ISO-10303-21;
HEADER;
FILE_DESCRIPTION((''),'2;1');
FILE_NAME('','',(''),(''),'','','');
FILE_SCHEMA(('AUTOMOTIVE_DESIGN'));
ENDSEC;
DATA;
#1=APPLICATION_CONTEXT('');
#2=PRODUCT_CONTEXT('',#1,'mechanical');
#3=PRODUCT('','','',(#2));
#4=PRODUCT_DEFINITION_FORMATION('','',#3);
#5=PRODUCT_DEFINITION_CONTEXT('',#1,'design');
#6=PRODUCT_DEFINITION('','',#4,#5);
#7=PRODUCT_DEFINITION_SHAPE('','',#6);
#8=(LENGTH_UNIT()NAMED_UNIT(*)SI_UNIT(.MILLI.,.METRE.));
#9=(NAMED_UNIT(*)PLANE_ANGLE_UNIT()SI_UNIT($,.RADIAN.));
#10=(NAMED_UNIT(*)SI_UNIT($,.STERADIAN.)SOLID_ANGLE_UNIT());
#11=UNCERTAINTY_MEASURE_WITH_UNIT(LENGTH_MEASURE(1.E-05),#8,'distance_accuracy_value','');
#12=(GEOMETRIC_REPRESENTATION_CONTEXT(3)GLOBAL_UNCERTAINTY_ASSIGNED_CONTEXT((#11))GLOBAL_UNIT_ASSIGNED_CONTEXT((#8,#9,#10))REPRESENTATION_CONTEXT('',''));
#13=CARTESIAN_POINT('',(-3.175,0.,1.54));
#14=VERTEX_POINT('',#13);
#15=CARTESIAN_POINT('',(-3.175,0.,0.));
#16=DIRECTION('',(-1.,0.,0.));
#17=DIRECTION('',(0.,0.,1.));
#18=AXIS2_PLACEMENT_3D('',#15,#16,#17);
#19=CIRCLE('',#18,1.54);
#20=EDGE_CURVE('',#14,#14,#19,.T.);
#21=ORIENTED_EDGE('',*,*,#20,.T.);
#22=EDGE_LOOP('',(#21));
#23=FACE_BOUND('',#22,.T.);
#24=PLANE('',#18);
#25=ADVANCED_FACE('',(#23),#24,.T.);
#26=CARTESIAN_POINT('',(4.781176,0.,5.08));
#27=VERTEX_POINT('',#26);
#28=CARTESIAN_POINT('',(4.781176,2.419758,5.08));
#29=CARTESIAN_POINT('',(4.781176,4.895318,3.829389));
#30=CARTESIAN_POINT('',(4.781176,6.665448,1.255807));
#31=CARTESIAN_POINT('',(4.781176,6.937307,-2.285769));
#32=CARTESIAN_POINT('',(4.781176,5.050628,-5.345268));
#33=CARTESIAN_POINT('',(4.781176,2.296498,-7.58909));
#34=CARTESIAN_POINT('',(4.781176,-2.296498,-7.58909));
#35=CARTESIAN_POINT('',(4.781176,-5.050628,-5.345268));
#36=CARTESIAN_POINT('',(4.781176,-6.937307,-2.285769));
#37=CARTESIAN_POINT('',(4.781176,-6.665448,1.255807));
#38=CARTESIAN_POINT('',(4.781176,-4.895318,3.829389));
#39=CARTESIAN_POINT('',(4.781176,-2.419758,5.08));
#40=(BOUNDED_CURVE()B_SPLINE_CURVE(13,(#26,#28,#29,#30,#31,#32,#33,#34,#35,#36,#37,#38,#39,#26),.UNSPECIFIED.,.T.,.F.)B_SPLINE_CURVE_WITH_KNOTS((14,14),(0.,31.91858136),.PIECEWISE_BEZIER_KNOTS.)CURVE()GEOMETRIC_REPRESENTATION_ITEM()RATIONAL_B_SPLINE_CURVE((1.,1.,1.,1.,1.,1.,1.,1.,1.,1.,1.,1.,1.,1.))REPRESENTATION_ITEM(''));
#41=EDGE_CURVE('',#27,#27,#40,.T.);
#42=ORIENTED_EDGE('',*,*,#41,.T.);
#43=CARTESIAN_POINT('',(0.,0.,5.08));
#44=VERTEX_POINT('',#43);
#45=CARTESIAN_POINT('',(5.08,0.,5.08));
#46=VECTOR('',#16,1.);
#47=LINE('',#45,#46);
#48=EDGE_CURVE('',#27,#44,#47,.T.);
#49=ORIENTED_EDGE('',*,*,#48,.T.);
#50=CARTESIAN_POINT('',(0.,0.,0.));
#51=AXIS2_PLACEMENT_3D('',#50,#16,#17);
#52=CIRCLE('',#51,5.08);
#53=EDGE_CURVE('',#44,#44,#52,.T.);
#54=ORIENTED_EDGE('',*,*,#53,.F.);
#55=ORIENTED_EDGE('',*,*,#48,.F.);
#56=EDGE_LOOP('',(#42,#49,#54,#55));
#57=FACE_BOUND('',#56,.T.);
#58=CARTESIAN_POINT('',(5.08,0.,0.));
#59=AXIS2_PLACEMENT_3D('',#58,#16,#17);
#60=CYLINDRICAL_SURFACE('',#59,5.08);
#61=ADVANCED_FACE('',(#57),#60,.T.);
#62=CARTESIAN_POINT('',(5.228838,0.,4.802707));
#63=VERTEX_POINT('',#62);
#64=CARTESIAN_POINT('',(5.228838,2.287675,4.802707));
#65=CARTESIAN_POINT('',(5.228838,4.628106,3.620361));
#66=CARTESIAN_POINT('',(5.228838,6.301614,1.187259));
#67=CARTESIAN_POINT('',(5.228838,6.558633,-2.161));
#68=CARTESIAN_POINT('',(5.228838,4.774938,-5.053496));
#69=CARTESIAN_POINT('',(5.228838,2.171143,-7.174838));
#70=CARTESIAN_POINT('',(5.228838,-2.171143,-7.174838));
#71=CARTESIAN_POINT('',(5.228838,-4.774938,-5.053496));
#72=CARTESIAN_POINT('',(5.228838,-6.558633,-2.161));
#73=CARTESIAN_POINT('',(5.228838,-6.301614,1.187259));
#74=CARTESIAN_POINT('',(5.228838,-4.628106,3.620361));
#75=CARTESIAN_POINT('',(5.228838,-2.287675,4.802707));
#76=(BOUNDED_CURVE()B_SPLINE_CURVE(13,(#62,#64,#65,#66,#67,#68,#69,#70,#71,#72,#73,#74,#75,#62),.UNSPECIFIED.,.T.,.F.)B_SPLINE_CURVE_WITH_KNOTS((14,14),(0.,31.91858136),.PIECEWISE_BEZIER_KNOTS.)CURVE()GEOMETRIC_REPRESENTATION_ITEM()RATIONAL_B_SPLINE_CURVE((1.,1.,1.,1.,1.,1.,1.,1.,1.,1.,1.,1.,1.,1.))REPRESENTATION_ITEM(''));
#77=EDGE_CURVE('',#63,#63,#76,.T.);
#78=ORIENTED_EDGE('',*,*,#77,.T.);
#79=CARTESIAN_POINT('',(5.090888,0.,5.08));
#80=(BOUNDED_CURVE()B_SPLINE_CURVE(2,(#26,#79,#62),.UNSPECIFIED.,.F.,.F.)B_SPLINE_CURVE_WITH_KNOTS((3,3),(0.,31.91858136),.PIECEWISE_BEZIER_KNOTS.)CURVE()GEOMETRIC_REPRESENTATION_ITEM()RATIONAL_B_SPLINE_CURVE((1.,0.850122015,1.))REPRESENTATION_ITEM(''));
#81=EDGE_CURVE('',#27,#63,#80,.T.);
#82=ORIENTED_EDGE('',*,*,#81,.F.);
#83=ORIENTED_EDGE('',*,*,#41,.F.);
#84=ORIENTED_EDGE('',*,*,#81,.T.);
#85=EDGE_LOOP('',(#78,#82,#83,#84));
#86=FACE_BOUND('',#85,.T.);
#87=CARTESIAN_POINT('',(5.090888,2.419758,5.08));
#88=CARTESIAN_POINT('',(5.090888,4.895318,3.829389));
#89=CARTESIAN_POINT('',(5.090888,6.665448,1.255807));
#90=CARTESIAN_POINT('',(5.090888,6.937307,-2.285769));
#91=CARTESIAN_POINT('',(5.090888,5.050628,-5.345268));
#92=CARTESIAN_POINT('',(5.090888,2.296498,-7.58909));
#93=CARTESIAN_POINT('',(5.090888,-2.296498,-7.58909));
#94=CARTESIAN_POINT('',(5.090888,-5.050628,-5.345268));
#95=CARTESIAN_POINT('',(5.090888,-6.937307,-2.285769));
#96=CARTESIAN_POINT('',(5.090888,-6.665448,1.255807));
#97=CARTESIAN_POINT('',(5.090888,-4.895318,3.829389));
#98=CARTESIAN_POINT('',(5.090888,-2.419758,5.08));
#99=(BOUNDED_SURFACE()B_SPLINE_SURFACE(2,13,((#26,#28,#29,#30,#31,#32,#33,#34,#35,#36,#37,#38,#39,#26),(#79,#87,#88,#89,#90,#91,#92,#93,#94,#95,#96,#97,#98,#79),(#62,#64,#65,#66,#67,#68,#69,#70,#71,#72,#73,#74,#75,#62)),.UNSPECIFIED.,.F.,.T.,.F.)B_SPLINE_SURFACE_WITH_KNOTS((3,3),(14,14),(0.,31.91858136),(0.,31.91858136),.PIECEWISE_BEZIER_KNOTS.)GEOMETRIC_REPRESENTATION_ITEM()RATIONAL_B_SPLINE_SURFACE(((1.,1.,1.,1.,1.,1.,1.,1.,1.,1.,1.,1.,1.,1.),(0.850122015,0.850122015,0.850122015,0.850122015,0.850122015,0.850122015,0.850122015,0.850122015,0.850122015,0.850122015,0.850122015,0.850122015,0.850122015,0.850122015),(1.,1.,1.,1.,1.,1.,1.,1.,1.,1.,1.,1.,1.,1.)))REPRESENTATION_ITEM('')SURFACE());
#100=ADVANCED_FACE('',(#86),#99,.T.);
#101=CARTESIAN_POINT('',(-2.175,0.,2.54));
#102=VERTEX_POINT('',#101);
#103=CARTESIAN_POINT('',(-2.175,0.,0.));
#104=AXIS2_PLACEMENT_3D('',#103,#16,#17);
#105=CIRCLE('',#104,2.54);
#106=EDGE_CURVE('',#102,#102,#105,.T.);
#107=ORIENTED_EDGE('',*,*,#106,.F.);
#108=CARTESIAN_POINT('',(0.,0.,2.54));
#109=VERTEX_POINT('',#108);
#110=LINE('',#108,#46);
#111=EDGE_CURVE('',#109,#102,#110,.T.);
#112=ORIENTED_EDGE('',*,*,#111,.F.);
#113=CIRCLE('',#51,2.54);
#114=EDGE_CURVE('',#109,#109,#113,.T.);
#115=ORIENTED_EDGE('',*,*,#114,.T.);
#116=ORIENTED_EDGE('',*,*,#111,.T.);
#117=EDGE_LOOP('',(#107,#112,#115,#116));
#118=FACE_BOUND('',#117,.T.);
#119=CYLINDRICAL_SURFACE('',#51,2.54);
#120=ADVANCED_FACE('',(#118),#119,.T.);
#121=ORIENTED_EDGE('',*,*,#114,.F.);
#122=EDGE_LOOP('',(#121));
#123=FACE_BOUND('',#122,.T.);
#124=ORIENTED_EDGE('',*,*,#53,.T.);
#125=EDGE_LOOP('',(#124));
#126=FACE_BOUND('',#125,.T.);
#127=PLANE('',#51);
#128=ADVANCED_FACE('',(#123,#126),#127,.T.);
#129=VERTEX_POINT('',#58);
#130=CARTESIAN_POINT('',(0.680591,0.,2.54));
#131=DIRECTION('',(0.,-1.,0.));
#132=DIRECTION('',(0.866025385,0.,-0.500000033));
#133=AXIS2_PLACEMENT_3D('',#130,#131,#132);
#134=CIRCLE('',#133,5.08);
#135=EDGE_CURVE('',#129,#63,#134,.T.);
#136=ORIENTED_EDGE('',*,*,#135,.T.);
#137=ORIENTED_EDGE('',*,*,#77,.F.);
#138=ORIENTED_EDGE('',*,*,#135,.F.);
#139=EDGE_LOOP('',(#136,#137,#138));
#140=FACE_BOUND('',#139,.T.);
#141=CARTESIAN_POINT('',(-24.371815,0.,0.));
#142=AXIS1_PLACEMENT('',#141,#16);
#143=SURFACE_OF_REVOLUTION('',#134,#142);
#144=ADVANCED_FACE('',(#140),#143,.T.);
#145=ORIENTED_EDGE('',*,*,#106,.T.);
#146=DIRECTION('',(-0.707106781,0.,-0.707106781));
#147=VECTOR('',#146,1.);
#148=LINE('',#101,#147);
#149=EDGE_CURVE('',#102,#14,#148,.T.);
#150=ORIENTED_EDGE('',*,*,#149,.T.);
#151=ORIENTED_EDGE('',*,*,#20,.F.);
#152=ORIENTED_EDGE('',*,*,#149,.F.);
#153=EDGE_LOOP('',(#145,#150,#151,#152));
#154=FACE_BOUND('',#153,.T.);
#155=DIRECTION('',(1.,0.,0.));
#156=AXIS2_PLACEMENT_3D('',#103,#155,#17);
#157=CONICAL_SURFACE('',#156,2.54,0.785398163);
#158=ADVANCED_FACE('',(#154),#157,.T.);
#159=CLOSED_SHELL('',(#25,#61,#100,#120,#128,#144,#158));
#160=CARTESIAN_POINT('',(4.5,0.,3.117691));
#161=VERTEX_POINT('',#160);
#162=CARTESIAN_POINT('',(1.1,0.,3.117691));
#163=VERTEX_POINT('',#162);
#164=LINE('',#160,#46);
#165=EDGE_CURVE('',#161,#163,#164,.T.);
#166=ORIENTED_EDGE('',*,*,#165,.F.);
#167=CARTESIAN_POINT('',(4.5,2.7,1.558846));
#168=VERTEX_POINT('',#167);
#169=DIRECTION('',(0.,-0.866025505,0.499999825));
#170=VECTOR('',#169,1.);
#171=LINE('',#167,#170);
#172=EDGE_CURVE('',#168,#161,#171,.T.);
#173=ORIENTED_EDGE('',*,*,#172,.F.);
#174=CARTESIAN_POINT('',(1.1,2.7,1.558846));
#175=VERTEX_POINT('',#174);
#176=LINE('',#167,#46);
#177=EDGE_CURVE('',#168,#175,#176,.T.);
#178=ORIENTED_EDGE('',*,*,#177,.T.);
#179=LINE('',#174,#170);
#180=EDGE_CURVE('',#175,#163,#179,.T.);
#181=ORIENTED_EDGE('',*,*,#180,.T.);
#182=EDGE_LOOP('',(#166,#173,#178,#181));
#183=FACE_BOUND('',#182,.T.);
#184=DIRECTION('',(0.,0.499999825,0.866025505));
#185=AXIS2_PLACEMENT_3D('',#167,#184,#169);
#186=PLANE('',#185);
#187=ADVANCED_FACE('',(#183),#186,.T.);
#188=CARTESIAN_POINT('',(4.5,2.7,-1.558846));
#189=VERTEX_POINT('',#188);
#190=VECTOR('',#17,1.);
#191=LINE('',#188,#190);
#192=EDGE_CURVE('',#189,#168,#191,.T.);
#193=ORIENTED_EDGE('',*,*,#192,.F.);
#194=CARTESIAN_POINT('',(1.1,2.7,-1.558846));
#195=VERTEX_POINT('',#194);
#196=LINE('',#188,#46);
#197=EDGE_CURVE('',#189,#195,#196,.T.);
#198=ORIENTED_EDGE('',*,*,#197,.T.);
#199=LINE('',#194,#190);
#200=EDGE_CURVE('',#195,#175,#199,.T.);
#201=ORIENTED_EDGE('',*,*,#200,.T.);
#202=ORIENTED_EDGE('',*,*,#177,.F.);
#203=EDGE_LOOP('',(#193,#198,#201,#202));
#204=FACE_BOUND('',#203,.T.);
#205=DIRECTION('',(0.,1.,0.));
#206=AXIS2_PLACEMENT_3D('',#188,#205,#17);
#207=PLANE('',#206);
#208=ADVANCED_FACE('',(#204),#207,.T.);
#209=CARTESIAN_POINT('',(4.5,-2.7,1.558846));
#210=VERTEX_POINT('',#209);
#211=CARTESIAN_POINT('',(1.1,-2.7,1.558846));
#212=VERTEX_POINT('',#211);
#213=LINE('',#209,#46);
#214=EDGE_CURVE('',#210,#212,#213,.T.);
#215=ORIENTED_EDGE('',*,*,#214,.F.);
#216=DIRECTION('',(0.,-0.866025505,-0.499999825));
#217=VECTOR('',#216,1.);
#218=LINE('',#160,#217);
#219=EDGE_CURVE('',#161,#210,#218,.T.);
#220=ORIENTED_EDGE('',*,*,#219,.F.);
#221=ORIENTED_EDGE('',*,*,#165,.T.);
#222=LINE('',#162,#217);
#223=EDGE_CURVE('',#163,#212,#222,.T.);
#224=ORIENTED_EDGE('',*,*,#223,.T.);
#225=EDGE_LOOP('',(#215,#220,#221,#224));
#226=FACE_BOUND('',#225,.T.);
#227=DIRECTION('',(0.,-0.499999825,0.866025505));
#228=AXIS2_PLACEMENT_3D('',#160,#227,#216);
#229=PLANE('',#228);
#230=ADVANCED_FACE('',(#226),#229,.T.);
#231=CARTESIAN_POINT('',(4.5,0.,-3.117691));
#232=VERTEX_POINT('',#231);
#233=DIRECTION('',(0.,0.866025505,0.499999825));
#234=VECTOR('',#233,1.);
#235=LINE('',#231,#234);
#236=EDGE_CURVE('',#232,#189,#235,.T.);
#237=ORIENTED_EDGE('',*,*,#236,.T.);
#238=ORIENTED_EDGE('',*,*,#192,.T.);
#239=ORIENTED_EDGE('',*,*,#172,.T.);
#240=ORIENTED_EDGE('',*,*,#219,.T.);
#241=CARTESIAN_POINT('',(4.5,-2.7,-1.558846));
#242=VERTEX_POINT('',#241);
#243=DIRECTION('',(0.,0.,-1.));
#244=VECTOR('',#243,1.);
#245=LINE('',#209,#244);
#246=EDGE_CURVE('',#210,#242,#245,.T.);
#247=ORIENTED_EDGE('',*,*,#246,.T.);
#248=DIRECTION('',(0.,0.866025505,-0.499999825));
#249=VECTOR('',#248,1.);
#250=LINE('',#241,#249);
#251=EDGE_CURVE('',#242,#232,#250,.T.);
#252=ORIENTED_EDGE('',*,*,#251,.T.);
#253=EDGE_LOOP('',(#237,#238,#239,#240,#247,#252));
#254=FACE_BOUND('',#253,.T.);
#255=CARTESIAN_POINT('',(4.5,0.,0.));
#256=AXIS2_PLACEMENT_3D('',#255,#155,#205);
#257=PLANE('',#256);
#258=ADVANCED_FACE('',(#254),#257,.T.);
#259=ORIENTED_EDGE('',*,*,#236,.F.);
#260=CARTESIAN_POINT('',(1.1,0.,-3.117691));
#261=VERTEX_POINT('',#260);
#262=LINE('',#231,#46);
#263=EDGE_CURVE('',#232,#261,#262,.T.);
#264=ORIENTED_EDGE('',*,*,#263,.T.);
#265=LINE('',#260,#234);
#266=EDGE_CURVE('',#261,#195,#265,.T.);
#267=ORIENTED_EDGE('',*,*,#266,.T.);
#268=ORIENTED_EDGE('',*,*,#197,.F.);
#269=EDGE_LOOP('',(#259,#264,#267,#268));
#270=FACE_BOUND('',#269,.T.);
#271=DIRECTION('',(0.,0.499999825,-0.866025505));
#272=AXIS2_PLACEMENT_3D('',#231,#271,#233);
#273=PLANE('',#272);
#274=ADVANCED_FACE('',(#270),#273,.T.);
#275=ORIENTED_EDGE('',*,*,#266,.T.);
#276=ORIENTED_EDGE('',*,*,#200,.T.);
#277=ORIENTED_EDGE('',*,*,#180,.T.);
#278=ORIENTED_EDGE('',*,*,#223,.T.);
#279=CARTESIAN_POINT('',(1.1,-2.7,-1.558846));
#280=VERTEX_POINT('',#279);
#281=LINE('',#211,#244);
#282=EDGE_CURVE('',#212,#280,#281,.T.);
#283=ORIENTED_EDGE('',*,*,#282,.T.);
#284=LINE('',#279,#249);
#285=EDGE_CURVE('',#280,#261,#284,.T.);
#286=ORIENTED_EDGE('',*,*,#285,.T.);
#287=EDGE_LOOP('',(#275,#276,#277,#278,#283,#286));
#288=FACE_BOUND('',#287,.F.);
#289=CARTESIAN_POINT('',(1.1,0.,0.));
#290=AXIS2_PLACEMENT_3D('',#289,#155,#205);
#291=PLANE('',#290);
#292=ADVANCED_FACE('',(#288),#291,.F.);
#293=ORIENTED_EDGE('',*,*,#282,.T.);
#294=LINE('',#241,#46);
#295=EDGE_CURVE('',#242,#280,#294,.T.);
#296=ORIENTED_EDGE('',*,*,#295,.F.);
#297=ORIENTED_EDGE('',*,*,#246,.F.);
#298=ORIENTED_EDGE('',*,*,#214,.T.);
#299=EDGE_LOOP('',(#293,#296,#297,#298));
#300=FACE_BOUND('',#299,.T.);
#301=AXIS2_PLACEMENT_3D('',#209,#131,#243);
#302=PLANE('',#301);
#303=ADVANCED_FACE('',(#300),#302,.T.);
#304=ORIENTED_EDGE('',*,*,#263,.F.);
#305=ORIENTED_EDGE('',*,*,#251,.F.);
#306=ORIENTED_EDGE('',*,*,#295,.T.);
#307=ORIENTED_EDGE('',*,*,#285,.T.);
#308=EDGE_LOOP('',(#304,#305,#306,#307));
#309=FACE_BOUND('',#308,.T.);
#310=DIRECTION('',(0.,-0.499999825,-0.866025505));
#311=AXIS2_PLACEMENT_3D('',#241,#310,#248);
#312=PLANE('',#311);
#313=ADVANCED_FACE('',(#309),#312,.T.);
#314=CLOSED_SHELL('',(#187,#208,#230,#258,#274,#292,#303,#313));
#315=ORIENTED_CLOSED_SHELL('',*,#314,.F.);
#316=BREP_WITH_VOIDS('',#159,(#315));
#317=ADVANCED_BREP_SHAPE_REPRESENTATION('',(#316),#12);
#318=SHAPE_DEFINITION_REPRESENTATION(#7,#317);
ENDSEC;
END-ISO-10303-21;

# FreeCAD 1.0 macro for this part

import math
import FreeCAD as App
import Part
import Sketcher

V = App.Vector
Q = App.Units.Quantity


def edges_at(feature, points):
    """Names of the edges that pass closest to the given points."""
    edges = feature.Shape.Edges
    near = lambda p: min(range(len(edges)), key=lambda i: edges[i].distToShape(Part.Vertex(*p))[0])
    return sorted({f"Edge{near(p) + 1}" for p in points})


def add_polygon(sketch, points):
    """Adds a closed chain of lines whose ends are joined by coincident constraints."""
    first, n = sketch.GeometryCount, len(points)
    for a, b in zip(points, points[1:] + points[:1]):
        sketch.addGeometry(Part.LineSegment(App.Vector(*a, 0), App.Vector(*b, 0)), False)
    for i in range(n):
        sketch.addConstraint(Sketcher.Constraint("Coincident", first + i, 2, first + (i + 1) % n, 1))

doc = App.newDocument("Part")
body = doc.addObject("PartDesign::Body", "Body")

sketch1 = body.newObject("Sketcher::SketchObject", "Sketch")
sketch1.AttachmentSupport = (doc.getObject("XZ_Plane"), [""])
sketch1.MapMode = "FlatFace"
sketch1.addGeometry([
    Part.LineSegment(V(0, 5.1, 0), V(0, 2.5, 0)),
    Part.LineSegment(V(0, 2.5, 0), V(-3.2, 2.5, 0)),
    Part.LineSegment(V(-3.2, 2.5, 0), V(-3.2, 0, 0)),
    Part.LineSegment(V(-3.2, 0, 0), V(5.1, 0, 0)),
    Part.ArcOfCircle(Part.Circle(V(0.7, 2.5, 0), V(0, 0, 1), 5.1), math.radians(-30), math.radians(30)),
    Part.LineSegment(V(5.1, 5.1, 0), V(0, 5.1, 0)),
], False)
sketch1.addConstraint([
    Sketcher.Constraint("Coincident", 0, 2, 1, 1),
    Sketcher.Constraint("Coincident", 1, 2, 2, 1),
    Sketcher.Constraint("Coincident", 2, 2, 3, 1),
    Sketcher.Constraint("Coincident", 3, 2, 4, 1),
    Sketcher.Constraint("Coincident", 4, 2, 5, 1),
    Sketcher.Constraint("Coincident", 5, 2, 0, 1),
    Sketcher.Constraint("Vertical", 0),
    Sketcher.Constraint("Horizontal", 1),
    Sketcher.Constraint("Vertical", 2),
    Sketcher.Constraint("Horizontal", 3),
    Sketcher.Constraint("Horizontal", 5),
    Sketcher.Constraint("PointOnObject", 0, 2, -2),
    Sketcher.Constraint("PointOnObject", 2, 2, -1),
    Sketcher.Constraint("Horizontal", 4, 3, 0, 2),
    Sketcher.Constraint("Vertical", 3, 2, 4, 2),
    Sketcher.Constraint("Radius", 4, Q("0.2 in")),
    Sketcher.Constraint("DistanceX", 5, 2, 5, 1, Q("0.2 in")),
    Sketcher.Constraint("DistanceY", 0, 2, 0, 1, Q("0.1 in")),
    Sketcher.Constraint("DistanceX", 1, 2, 1, 1, Q("0.125 in")),
])
revolution = body.newObject("PartDesign::Revolution", "Revolution")
revolution.Profile = sketch1
revolution.ReferenceAxis = (sketch1, ["H_Axis"])
revolution.Angle = 360
doc.recompute()

chamfer = body.newObject("PartDesign::Chamfer", "Chamfer")
chamfer.Base = (revolution, edges_at(revolution, [(-3.175, 0, -2.54)]))
chamfer.Size = 1
doc.recompute()

fillet = body.newObject("PartDesign::Fillet", "Fillet")
fillet.Base = (chamfer, edges_at(chamfer, [(5.08, 0, -5.08)]))
fillet.Radius = 0.5

sketch2 = body.newObject("Sketcher::SketchObject", "Sketch001")
sketch2.AttachmentSupport = (doc.getObject("YZ_Plane"), [""])
sketch2.MapMode = "FlatFace"
sketch2.AttachmentOffset = App.Placement(V(0, 0, 4.5), App.Rotation())
add_polygon(sketch2, [(0, -3.1), (2.7, -1.6), (2.7, 1.6), (0, 3.1), (-2.7, 1.6), (-2.7, -1.6)])
sketch2.addConstraint([
    Sketcher.Constraint("Vertical", 1),
    Sketcher.Constraint("Vertical", 4),
    Sketcher.Constraint("Symmetric", 0, 2, 3, 2, -1, 1),
    Sketcher.Constraint("Symmetric", 2, 2, 5, 2, -1, 1),
    Sketcher.Constraint("PointOnObject", 2, 2, -2),
    Sketcher.Constraint("Parallel", 2, 5),
    Sketcher.Constraint("Horizontal", 1, 2, 3, 2),
    Sketcher.Constraint("Angle", 0, Q("29.999988 deg")),
    Sketcher.Constraint("DistanceY", 1, 1, 1, 2, Q("3.117692 mm")),
    Sketcher.Constraint("DistanceX", -1, 1, 0, 2, Q("2.7 mm")),
])
pocket1 = body.newObject("PartDesign::Pocket", "Pocket")
pocket1.Profile = sketch2
pocket1.Length = 3.4

doc.recompute()
